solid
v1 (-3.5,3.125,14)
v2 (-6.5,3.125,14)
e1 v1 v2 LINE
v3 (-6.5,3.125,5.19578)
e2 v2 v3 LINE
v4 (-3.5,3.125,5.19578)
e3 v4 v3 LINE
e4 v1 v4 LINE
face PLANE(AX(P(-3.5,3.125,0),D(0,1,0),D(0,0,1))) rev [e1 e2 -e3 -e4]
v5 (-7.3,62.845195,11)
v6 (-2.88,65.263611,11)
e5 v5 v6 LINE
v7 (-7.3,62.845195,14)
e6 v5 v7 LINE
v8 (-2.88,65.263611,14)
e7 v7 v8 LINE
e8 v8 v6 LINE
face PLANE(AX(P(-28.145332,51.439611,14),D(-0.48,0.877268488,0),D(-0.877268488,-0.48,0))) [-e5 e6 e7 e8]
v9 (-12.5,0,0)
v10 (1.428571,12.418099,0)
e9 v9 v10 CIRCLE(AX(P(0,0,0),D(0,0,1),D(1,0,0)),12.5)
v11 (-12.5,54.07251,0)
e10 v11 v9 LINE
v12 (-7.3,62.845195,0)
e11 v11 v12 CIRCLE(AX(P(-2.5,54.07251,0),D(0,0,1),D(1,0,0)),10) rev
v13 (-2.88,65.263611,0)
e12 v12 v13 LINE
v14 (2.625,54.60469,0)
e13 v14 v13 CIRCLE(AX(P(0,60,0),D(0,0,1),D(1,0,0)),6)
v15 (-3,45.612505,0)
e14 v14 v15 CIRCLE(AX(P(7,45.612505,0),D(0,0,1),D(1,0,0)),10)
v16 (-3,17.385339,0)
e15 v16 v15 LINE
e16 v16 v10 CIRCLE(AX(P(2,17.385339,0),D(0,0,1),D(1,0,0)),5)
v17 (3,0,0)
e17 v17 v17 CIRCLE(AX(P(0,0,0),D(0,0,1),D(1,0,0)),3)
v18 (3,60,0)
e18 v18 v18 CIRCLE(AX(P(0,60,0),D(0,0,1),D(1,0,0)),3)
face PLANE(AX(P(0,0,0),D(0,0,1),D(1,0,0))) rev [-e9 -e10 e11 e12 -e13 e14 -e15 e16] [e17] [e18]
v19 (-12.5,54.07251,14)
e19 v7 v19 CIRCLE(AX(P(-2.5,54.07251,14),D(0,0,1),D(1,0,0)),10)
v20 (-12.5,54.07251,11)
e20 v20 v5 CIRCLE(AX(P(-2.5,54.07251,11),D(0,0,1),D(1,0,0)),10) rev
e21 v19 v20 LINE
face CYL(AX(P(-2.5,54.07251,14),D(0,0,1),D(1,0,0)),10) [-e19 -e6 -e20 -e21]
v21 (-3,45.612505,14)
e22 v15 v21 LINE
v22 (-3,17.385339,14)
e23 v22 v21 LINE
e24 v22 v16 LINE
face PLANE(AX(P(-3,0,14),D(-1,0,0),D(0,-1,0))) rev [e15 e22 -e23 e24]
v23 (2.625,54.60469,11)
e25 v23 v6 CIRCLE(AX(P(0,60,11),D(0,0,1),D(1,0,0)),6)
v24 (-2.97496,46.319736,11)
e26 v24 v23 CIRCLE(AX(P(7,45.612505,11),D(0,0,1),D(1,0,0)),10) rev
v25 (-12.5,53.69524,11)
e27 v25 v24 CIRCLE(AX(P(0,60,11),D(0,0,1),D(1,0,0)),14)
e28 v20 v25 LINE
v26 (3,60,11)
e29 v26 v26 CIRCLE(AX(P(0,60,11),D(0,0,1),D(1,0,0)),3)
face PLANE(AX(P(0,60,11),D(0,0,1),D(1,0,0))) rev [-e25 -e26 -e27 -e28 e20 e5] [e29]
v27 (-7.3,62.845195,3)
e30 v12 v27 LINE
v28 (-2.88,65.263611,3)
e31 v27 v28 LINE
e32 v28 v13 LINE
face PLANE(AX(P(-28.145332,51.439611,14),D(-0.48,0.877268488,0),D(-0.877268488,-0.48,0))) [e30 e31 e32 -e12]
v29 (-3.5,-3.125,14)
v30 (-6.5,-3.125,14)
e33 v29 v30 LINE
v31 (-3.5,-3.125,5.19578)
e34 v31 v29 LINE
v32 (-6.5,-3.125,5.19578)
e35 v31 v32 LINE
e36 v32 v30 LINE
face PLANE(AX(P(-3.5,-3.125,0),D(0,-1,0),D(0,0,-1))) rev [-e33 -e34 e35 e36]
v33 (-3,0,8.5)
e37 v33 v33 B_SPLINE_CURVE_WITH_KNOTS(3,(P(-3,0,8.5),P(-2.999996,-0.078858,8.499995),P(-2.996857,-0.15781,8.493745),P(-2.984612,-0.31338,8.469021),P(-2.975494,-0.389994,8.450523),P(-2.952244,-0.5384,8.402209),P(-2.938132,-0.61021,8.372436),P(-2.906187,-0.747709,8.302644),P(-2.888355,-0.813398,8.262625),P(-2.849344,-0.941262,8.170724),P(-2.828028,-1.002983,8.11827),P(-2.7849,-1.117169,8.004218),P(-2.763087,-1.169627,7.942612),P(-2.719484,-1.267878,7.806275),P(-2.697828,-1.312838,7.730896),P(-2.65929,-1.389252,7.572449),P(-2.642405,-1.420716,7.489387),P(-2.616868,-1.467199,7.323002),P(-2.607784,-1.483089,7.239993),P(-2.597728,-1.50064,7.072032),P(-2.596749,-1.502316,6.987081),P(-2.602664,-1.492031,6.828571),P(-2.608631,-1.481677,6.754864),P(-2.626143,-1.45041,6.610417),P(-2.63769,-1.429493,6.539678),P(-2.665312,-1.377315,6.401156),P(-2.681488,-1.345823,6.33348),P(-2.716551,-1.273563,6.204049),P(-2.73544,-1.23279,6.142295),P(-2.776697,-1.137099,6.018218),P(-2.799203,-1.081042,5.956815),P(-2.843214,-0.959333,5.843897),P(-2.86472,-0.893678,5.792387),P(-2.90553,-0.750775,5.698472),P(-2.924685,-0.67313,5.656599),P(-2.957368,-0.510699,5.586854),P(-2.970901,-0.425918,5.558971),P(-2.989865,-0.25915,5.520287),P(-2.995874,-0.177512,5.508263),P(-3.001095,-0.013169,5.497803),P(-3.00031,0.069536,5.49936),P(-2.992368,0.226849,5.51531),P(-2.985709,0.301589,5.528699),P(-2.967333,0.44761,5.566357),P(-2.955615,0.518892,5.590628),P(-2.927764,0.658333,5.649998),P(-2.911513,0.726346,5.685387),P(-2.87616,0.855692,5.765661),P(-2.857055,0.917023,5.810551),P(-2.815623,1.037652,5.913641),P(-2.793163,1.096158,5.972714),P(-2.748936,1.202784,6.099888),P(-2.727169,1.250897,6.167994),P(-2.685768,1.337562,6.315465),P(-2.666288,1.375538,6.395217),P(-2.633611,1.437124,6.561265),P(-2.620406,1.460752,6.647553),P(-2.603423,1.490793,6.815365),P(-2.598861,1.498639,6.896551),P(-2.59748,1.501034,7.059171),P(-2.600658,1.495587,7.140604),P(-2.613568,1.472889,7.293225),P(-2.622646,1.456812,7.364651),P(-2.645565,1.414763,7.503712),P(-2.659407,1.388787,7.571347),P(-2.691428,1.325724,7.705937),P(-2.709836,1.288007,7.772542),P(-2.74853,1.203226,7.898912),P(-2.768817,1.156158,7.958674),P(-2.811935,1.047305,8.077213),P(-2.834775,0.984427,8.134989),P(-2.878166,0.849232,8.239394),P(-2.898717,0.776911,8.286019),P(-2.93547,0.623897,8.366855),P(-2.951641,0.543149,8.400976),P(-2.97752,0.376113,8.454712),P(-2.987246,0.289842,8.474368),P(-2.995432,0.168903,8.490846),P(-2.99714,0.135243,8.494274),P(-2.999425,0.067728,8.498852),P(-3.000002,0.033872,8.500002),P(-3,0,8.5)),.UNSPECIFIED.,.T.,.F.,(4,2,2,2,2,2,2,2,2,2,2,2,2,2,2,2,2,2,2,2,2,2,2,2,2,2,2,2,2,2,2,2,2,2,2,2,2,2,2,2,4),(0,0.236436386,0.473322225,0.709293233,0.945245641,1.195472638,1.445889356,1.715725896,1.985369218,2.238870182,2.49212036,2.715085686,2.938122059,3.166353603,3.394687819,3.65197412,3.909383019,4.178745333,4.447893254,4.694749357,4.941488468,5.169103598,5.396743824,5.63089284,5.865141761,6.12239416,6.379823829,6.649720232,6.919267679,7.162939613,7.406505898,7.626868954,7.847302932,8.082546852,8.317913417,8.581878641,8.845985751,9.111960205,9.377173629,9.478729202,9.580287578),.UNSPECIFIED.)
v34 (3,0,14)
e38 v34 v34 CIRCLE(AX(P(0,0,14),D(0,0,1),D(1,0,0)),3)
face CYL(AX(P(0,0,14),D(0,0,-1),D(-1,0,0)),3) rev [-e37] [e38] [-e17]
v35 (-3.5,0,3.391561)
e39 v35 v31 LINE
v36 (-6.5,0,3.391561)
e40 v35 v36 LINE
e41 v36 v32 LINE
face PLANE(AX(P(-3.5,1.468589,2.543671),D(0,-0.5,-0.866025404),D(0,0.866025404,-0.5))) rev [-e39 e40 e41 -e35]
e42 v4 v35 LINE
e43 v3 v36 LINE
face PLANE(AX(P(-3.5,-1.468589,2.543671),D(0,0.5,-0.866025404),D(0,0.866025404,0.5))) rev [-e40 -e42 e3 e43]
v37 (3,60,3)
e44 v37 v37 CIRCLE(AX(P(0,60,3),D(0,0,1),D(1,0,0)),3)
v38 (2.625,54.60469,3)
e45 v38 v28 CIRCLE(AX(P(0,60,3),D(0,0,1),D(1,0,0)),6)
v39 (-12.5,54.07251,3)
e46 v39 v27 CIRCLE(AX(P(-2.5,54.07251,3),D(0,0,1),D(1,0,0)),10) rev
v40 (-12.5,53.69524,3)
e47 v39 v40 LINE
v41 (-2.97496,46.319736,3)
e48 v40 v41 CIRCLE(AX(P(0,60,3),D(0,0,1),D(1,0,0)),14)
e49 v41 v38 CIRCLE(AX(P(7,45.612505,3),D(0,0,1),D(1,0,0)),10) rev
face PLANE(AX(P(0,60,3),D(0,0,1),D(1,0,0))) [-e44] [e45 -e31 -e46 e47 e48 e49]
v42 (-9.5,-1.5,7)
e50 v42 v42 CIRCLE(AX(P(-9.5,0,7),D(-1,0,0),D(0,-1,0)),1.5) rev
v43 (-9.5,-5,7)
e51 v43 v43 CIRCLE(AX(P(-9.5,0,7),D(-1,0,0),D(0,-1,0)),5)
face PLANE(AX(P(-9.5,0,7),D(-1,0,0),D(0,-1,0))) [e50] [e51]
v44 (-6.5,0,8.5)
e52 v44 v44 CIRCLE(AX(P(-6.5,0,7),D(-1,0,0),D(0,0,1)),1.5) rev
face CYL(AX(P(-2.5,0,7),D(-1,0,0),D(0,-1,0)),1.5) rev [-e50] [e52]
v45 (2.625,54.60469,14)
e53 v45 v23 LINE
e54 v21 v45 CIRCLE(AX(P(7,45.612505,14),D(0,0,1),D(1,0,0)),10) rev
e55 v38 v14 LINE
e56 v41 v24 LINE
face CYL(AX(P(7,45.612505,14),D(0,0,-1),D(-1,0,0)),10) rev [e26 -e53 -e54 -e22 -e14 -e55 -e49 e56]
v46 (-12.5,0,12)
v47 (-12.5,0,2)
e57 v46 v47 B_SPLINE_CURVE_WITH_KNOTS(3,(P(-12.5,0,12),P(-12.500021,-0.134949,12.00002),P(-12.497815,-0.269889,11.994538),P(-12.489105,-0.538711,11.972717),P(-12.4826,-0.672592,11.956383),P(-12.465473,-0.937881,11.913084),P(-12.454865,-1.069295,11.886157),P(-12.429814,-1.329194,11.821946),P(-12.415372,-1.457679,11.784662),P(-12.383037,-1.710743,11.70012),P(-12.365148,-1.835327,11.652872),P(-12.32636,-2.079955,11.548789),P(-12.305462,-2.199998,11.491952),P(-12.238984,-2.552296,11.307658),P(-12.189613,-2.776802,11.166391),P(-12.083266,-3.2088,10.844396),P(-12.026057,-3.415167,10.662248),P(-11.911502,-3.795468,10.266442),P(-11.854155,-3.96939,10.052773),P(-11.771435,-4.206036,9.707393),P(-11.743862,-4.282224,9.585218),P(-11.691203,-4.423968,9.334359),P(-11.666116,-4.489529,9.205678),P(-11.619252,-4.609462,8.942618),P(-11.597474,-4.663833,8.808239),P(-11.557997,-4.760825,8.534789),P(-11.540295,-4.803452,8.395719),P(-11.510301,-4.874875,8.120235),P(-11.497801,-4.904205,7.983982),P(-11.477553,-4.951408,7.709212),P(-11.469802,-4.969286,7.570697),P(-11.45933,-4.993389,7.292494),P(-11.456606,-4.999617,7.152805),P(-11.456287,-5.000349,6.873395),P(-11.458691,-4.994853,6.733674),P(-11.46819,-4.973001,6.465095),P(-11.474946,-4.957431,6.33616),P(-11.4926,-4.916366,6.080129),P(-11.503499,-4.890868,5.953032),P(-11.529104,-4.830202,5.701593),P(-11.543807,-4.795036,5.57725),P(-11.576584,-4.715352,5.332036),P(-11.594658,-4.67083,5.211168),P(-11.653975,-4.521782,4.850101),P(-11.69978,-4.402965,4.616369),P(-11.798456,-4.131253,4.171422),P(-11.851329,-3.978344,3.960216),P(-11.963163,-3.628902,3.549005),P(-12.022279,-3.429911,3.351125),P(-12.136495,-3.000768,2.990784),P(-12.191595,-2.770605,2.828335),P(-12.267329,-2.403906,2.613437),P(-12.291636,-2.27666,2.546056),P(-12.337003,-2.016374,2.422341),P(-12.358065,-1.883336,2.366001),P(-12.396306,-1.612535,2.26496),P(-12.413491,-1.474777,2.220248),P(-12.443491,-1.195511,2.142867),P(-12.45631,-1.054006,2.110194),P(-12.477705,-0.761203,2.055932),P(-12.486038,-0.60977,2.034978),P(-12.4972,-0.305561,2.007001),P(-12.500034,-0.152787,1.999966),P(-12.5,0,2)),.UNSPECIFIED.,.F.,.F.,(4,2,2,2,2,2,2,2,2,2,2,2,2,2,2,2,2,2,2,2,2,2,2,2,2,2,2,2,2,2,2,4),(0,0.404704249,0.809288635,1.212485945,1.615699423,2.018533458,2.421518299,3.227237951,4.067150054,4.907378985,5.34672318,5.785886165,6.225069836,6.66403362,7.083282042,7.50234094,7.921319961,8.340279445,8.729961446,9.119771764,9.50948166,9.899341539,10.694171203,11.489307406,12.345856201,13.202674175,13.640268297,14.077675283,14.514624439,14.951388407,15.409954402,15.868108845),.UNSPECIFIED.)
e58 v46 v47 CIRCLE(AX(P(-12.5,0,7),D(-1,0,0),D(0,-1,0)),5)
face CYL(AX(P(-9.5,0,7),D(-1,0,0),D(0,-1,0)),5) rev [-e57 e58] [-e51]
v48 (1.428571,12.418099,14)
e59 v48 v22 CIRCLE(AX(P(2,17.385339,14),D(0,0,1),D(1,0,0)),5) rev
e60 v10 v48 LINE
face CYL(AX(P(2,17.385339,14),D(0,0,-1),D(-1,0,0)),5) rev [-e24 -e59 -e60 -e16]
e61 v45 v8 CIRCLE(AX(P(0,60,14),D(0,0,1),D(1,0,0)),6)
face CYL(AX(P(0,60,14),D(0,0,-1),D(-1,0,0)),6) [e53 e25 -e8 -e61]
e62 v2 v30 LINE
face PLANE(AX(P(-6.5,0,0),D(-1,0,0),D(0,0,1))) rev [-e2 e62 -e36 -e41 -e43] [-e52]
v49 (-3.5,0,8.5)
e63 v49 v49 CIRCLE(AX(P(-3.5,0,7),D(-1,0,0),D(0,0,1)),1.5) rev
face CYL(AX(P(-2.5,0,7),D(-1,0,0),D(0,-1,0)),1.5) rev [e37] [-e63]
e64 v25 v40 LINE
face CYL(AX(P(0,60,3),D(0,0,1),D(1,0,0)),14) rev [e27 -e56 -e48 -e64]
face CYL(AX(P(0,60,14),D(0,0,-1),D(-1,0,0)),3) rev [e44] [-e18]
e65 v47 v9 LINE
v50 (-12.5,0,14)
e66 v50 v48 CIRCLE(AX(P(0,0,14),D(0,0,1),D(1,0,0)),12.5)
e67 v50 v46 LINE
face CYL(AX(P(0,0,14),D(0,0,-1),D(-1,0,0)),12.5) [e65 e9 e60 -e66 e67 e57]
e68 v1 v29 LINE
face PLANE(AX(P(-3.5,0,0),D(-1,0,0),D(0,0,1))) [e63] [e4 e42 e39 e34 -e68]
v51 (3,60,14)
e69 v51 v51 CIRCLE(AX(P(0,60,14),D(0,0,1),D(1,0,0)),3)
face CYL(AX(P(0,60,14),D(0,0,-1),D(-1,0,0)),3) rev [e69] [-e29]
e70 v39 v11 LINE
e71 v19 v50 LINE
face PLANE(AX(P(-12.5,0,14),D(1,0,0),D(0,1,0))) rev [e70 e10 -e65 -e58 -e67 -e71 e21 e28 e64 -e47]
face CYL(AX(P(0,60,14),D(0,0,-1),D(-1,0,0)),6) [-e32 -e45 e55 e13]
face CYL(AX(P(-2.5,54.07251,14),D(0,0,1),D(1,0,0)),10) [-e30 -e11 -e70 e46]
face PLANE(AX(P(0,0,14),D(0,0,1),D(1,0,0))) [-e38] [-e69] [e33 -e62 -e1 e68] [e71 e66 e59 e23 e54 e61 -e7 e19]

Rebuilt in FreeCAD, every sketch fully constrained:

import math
import FreeCAD as App
import Part
import Sketcher
from FreeCAD import Vector
Q = App.Units.Quantity


def edges_at(feature, points):
    """Names of the edges that pass closest to the given points."""
    edges = feature.Shape.Edges
    near = lambda p: min(range(len(edges)), key=lambda i: edges[i].distToShape(Part.Vertex(*p))[0])
    return sorted({f"Edge{near(p) + 1}" for p in points})

doc = App.newDocument("Part")
body = doc.addObject("PartDesign::Body", "Body")

# Sketch on XY plane
sketch1 = body.newObject("Sketcher::SketchObject", "Sketch")
sketch1.AttachmentSupport = (doc.getObject("XY_Plane"), [""])
sketch1.MapMode = "FlatFace"
sketch1.addGeometry([
    Part.ArcOfCircle(Part.Circle(Vector(0, 0, 0), Vector(0, 0, 1), 12.5), math.radians(180), math.radians(464)),  # 0
    Part.LineSegment(Vector(-3, 12.1, 0), Vector(-3, 54.8, 0)),  # 1
    Part.ArcOfCircle(Part.Circle(Vector(0, 60, 0), Vector(0, 0, 1), 6), math.radians(-120), math.radians(119)),  # 2
    Part.LineSegment(Vector(-2.9, 65.3, 0), Vector(-12.5, 60, 0)),  # 3
    Part.LineSegment(Vector(-12.5, 60, 0), Vector(-12.5, 0, 0)),  # 4
    Part.Circle(Vector(0, 0, 0), Vector(0, 0, 1), 3),  # 5
    Part.Circle(Vector(0, 60, 0), Vector(0, 0, 1), 3),  # 6
], False)
sketch1.addConstraint([
    Sketcher.Constraint("Coincident", 0, 2, 1, 1),
    Sketcher.Constraint("Coincident", 1, 2, 2, 1),
    Sketcher.Constraint("Tangent", 2, 2, 3, 1),
    Sketcher.Constraint("Coincident", 3, 2, 4, 1),
    Sketcher.Constraint("Tangent", 4, 2, 0, 1),
    Sketcher.Constraint("Vertical", 1),
    Sketcher.Constraint("Vertical", 4),
    Sketcher.Constraint("Coincident", 0, 3, -1, 1),
    Sketcher.Constraint("Coincident", 5, 3, -1, 1),
    Sketcher.Constraint("Coincident", 6, 3, 2, 3),
    Sketcher.Constraint("Equal", 5, 6),
    Sketcher.Constraint("PointOnObject", 2, 3, -2),
    Sketcher.Constraint("Horizontal", 6, 3, 3, 2),
    Sketcher.Constraint("Diameter", 5, 6.0),
    Sketcher.Constraint("Radius", 2, 6.0),
    Sketcher.Constraint("Radius", 0, 12.5),
    Sketcher.Constraint("DistanceY", 4, 2, 4, 1, 60.0),
    Sketcher.Constraint("DistanceX", 0, 2, -1, 1, 3.0),
])
pad1 = body.newObject("PartDesign::Pad", "Pad")
pad1.Profile = sketch1
pad1.Length = 14
doc.recompute()

fillet = body.newObject("PartDesign::Fillet", "Fillet")
fillet.Base = (pad1, edges_at(pad1, [(-12.5, 60, 7)]))
fillet.Radius = 10
doc.recompute()

fillet2 = body.newObject("PartDesign::Fillet", "Fillet001")
fillet2.Base = (fillet, edges_at(fillet, [(-3, 54.804, 7)]))
fillet2.Radius = 10
doc.recompute()

fillet3 = body.newObject("PartDesign::Fillet", "Fillet002")
fillet3.Base = (fillet2, edges_at(fillet2, [(-3, 12.135, 7)]))
fillet3.Radius = 5

# Sketch on XY plane
sketch2 = body.newObject("Sketcher::SketchObject", "Sketch001")
sketch2.AttachmentSupport = (doc.getObject("XY_Plane"), [""])
sketch2.MapMode = "FlatFace"
sketch2.AttachmentOffset = App.Placement(Vector(0, 0, 11), App.Rotation())
sketch2.addGeometry(Part.Circle(Vector(0, 60, 0), Vector(0, 0, 1), 14), False)
sketch2.addConstraint([
    Sketcher.Constraint("PointOnObject", 0, 3, -2),
    Sketcher.Constraint("Diameter", 0, 28.0),
    Sketcher.Constraint("DistanceY", -1, 1, 0, 3, 60.0),
])
pocket1 = body.newObject("PartDesign::Pocket", "Pocket")
pocket1.Profile = sketch2
pocket1.Length = 8

# Sketch on YZ plane
sketch3 = body.newObject("Sketcher::SketchObject", "Sketch002")
sketch3.AttachmentSupport = (doc.getObject("YZ_Plane"), [""])
sketch3.MapMode = "FlatFace"
sketch3.AttachmentOffset = App.Placement(Vector(0, 0, -12.5), App.Rotation())
sketch3.addGeometry(Part.Circle(Vector(0, 7, 0), Vector(0, 0, 1), 1.5), False)
sketch3.addConstraint([
    Sketcher.Constraint("PointOnObject", 0, 3, -2),
    Sketcher.Constraint("Diameter", 0, 3.0),
    Sketcher.Constraint("DistanceY", -1, 1, 0, 3, 7.0),
])
pocket2 = body.newObject("PartDesign::Pocket", "Pocket001")
pocket2.Profile = sketch3
pocket2.Length = 10
pocket2.Reversed = True

# Sketch on YZ plane
sketch4 = body.newObject("Sketcher::SketchObject", "Sketch003")
sketch4.AttachmentSupport = (doc.getObject("YZ_Plane"), [""])
sketch4.MapMode = "FlatFace"
sketch4.AttachmentOffset = App.Placement(Vector(0, 0, -12.5), App.Rotation())
sketch4.addGeometry(Part.Circle(Vector(0, 7, 0), Vector(0, 0, 1), 5), False)
sketch4.addConstraint([
    Sketcher.Constraint("PointOnObject", 0, 3, -2),
    Sketcher.Constraint("Diameter", 0, 10.0),
    Sketcher.Constraint("DistanceY", -1, 1, 0, 3, 7.0),
])
pocket3 = body.newObject("PartDesign::Pocket", "Pocket002")
pocket3.Profile = sketch4
pocket3.Length = 3
pocket3.Reversed = True

# Sketch on YZ plane
sketch5 = body.newObject("Sketcher::SketchObject", "Sketch004")
sketch5.AttachmentSupport = (doc.getObject("YZ_Plane"), [""])
sketch5.MapMode = "FlatFace"
sketch5.AttachmentOffset = App.Placement(Vector(0, 0, -6.5), App.Rotation())
sketch5.addGeometry([
    Part.LineSegment(Vector(3.1, 14, 0), Vector(3.1, 5.2, 0)),  # 0
    Part.LineSegment(Vector(3.1, 5.2, 0), Vector(0, 3.4, 0)),  # 1
    Part.LineSegment(Vector(0, 3.4, 0), Vector(-3.1, 5.2, 0)),  # 2
    Part.LineSegment(Vector(-3.1, 5.2, 0), Vector(-3.1, 14, 0)),  # 3
    Part.LineSegment(Vector(-3.1, 14, 0), Vector(3.1, 14, 0)),  # 4
    Part.Circle(Vector(0, 7, 0), Vector(0, 0, 1), 1.5),  # 5
], False)
sketch5.addConstraint([
    Sketcher.Constraint("Coincident", 0, 2, 1, 1),
    Sketcher.Constraint("Coincident", 1, 2, 2, 1),
    Sketcher.Constraint("Coincident", 2, 2, 3, 1),
    Sketcher.Constraint("Coincident", 3, 2, 4, 1),
    Sketcher.Constraint("Coincident", 4, 2, 0, 1),
    Sketcher.Constraint("Vertical", 0),
    Sketcher.Constraint("Vertical", 3),
    Sketcher.Constraint("Horizontal", 4),
    Sketcher.Constraint("Symmetric", 0, 2, 2, 2, -2),
    Sketcher.Constraint("PointOnObject", 5, 3, -2),
    Sketcher.Constraint("PointOnObject", 1, 2, -2),
    Sketcher.Constraint("Diameter", 5, 3.0),
    Sketcher.Constraint("Angle", 1, Q("-150 deg")),
    Sketcher.Constraint("DistanceY", -1, 1, 5, 3, 7.0),
    Sketcher.Constraint("DistanceY", -1, 1, 3, 2, 14.0),
    Sketcher.Constraint("DistanceX", 4, 1, 4, 2, 6.25),
    Sketcher.Constraint("DistanceY", 0, 2, 0, 1, 8.80422),
])
pocket4 = body.newObject("PartDesign::Pocket", "Pocket003")
pocket4.Profile = sketch5
pocket4.Length = 3
pocket4.Reversed = True

doc.recompute()
